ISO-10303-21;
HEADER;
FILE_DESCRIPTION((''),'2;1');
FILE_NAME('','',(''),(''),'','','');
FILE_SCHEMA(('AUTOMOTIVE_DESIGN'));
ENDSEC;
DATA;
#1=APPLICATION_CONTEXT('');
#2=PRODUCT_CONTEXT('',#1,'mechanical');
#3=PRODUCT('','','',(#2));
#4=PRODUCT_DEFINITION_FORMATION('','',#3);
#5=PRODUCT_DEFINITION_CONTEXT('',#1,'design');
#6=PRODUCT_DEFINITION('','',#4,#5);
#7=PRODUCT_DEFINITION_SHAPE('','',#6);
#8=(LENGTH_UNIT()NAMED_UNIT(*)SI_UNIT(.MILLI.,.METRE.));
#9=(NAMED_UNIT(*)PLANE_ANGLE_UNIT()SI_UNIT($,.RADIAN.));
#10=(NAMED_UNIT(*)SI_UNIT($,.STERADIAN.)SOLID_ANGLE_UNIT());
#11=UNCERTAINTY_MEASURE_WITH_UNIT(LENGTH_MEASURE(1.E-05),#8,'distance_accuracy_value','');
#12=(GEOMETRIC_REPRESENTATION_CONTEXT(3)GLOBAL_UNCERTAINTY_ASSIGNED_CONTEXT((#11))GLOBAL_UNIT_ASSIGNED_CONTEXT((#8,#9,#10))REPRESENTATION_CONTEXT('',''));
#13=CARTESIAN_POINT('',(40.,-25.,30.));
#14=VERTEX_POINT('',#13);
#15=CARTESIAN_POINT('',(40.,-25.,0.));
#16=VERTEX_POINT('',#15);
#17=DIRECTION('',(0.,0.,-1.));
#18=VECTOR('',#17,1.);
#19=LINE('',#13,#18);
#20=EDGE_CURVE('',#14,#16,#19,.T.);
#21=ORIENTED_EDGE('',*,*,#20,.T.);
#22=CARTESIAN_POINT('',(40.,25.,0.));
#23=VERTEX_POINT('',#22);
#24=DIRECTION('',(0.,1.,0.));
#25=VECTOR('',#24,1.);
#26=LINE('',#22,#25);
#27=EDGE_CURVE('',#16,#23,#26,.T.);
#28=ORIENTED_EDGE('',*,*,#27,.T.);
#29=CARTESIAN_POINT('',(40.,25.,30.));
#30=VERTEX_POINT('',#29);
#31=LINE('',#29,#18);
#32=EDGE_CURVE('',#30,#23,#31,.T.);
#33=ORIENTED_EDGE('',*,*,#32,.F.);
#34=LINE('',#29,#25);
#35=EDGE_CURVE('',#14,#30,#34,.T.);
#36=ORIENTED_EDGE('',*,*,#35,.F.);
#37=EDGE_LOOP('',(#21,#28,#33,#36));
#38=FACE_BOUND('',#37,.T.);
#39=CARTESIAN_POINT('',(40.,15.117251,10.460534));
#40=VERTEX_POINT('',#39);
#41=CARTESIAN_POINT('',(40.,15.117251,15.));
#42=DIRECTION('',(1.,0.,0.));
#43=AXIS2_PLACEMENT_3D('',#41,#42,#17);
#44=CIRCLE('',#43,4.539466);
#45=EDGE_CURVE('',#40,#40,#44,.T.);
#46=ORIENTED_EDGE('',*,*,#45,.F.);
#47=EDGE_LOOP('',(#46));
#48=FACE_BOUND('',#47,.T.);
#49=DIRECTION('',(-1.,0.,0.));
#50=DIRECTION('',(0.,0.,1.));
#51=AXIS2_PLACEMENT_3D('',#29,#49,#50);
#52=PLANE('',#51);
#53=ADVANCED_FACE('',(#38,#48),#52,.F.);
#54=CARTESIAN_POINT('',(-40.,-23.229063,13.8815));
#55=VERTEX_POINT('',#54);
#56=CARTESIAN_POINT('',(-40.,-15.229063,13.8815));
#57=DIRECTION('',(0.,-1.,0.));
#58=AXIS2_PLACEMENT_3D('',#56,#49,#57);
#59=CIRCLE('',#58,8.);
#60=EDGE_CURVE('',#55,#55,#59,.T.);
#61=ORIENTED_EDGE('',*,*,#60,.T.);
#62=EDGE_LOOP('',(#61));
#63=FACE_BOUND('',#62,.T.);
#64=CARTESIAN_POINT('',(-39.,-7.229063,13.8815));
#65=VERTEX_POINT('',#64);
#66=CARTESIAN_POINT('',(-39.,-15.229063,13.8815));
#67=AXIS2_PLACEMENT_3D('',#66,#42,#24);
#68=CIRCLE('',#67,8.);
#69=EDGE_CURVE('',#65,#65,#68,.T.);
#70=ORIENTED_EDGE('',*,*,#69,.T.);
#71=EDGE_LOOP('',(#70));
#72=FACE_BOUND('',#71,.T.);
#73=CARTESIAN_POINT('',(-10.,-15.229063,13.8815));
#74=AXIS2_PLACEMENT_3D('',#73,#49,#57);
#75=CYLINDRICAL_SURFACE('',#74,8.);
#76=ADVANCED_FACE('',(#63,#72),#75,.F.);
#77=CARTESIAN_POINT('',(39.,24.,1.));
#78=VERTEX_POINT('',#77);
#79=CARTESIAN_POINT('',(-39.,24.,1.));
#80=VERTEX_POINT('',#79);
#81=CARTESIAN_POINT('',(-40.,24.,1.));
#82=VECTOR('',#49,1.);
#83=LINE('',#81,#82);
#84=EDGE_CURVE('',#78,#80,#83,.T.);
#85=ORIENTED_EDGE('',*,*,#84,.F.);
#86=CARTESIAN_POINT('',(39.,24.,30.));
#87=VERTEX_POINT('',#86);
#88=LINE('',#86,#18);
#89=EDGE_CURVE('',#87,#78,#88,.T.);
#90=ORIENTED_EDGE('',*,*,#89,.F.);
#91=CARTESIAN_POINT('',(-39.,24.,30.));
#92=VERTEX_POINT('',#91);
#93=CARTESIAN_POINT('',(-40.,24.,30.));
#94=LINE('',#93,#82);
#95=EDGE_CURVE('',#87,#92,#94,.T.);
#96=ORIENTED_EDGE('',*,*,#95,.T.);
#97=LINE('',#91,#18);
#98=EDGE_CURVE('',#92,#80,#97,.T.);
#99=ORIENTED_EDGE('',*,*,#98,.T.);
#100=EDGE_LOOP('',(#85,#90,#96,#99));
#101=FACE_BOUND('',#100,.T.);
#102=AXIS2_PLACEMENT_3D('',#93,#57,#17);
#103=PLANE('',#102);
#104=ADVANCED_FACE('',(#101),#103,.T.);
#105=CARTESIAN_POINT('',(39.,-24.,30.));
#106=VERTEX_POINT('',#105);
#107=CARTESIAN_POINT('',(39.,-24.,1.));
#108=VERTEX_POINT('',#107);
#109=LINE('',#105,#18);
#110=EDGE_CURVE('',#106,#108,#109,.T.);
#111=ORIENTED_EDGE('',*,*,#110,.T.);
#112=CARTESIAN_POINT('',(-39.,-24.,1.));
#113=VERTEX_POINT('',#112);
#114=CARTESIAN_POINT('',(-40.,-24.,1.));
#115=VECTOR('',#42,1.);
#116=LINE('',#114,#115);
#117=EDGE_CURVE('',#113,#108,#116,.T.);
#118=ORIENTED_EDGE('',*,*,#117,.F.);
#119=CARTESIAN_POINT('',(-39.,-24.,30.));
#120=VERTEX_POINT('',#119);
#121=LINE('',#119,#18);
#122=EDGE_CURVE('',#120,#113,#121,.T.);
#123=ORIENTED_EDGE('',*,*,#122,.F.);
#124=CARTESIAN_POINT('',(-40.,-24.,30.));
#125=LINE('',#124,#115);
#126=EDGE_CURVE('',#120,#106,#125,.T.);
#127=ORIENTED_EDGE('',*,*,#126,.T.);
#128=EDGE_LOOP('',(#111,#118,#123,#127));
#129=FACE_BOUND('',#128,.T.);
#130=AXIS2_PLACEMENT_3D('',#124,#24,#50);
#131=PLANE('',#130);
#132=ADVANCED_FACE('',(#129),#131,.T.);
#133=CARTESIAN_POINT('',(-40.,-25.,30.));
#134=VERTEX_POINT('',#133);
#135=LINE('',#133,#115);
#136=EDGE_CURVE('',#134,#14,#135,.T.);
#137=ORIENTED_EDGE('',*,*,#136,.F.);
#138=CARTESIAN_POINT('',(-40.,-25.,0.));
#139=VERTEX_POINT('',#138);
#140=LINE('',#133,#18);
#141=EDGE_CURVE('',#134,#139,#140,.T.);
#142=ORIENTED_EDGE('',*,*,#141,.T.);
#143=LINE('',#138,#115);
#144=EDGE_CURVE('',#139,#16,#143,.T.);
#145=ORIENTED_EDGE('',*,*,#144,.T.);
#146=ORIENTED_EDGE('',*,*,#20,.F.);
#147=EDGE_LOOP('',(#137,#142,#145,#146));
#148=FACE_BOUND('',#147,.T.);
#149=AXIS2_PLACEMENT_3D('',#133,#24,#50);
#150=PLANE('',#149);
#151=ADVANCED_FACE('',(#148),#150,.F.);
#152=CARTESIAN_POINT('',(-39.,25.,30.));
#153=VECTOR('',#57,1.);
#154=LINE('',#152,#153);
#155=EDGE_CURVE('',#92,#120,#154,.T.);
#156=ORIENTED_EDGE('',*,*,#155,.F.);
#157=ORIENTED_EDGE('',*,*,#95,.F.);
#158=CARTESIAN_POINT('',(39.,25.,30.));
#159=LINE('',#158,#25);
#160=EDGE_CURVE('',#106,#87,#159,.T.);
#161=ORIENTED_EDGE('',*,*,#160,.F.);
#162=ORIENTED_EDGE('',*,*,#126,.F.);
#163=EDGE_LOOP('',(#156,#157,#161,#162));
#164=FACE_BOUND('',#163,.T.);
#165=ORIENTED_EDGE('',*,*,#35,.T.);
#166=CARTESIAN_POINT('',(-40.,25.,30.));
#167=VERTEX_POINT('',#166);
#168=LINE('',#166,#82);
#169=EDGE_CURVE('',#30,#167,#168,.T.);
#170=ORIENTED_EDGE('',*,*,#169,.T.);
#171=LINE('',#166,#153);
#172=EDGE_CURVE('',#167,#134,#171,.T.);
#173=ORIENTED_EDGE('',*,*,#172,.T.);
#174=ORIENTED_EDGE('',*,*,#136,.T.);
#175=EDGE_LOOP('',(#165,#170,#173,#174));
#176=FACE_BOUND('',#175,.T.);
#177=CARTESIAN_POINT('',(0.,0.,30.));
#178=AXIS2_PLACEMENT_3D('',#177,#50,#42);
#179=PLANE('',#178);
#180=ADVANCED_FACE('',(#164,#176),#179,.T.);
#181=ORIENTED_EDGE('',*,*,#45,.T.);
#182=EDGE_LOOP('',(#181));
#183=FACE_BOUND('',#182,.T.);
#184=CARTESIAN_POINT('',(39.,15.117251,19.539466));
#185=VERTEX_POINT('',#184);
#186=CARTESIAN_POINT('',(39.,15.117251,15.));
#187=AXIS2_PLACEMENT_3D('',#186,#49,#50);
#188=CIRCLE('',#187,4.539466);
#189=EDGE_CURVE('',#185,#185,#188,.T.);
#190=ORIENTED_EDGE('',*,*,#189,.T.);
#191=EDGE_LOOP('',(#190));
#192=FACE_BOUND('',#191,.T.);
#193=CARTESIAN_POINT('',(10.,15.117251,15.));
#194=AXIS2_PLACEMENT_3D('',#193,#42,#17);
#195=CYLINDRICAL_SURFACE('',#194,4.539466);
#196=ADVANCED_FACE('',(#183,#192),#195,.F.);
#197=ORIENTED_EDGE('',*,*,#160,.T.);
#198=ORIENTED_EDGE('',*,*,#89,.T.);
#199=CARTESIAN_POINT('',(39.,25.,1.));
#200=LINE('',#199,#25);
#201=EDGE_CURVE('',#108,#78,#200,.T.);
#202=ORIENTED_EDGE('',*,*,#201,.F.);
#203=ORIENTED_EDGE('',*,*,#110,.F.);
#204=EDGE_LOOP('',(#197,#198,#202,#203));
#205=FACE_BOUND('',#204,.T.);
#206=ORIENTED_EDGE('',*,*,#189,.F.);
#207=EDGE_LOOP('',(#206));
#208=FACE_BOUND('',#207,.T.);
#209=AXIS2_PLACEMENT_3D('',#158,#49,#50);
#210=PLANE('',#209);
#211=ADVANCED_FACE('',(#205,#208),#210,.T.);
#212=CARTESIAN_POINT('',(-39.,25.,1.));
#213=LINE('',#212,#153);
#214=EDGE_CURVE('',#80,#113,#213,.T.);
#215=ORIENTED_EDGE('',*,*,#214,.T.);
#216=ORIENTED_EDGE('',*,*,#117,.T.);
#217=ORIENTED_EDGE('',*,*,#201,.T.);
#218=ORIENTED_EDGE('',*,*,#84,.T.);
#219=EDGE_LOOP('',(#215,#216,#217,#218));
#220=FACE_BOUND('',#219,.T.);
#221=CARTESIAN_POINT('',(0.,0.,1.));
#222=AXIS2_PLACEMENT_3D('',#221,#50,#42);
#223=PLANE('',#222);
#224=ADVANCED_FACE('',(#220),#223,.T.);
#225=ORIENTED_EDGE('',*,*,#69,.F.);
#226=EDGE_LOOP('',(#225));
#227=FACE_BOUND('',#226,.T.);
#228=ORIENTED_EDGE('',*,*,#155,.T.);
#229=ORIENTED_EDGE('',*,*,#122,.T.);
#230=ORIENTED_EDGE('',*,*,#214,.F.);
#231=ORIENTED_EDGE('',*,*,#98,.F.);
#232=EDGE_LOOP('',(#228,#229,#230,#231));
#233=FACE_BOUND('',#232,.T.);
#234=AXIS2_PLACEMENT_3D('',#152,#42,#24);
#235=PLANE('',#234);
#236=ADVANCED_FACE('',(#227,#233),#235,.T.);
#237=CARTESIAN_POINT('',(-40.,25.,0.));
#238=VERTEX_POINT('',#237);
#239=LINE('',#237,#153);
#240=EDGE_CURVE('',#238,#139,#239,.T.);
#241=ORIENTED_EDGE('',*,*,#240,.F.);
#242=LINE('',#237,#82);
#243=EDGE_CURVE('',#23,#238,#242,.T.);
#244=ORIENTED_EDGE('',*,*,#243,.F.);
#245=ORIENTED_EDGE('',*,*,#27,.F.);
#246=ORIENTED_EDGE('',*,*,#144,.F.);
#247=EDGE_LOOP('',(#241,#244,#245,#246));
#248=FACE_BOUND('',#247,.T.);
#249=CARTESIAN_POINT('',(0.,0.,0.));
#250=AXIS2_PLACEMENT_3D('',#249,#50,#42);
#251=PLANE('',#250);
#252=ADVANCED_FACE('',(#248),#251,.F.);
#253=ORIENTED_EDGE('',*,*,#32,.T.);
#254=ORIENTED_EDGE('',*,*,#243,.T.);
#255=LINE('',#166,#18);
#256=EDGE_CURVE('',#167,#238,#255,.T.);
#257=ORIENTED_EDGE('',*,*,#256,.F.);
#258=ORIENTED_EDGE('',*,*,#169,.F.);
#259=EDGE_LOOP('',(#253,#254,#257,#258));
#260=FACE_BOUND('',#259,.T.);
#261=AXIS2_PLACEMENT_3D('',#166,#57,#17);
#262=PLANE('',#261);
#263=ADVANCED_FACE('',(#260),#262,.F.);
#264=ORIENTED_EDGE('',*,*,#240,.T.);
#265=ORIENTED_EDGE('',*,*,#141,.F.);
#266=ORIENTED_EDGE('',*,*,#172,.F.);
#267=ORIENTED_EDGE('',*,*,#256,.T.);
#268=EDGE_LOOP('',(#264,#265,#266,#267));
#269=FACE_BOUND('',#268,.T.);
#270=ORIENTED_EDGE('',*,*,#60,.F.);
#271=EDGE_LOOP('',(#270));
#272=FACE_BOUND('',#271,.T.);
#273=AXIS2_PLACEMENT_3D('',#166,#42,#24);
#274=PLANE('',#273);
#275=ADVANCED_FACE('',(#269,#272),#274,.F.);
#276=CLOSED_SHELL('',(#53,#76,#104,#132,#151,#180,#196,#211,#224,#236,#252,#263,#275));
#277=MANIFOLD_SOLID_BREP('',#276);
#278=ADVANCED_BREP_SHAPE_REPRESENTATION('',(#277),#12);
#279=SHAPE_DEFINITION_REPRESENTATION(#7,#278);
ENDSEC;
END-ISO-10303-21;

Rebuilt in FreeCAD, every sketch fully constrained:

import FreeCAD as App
import Part
import Sketcher


def faces_at(feature, points):
    """Names of the faces that lie closest to the given points."""
    faces = feature.Shape.Faces
    near = lambda p: min(range(len(faces)), key=lambda i: faces[i].distToShape(Part.Vertex(*p))[0])
    return sorted({f"Face{near(p) + 1}" for p in points})

doc = App.newDocument("Part")
params = doc.addObject("Spreadsheet::Sheet", "Params")
for row, (alias, value) in enumerate([
    ("sketch1_width", "80 mm"),
    ("sketch1_height", "50 mm"),
    ("pad1_length", "30 mm"),
    ("thickness_wall", "1 mm"),
    ("pocket1_length", "30 mm"),
    ("sketch3_diameter", "16 mm"),
    ("pocket2_length", "30 mm"),
], start=1):
    params.set(f"A{row}", alias)
    params.set(f"B{row}", "=" + value)
    params.setAlias(f"B{row}", alias)

body = doc.addObject("PartDesign::Body", "Body")

# Sketch on XY plane
sketch1 = body.newObject("Sketcher::SketchObject", "Sketch")
sketch1.AttachmentSupport = (doc.getObject("XY_Plane"), [""])
sketch1.MapMode = "FlatFace"
sketch1.addGeometry([
    Part.LineSegment(App.Vector(-40, 25, 0), App.Vector(-40, -25, 0)),
    Part.LineSegment(App.Vector(-40, -25, 0), App.Vector(40, -25, 0)),
    Part.LineSegment(App.Vector(40, -25, 0), App.Vector(40, 25, 0)),
    Part.LineSegment(App.Vector(40, 25, 0), App.Vector(-40, 25, 0)),
], False)
sketch1.addConstraint([
    Sketcher.Constraint("Coincident", 0, 2, 1, 1),
    Sketcher.Constraint("Coincident", 1, 2, 2, 1),
    Sketcher.Constraint("Coincident", 2, 2, 3, 1),
    Sketcher.Constraint("Coincident", 3, 2, 0, 1),
    Sketcher.Constraint("Vertical", 0),
    Sketcher.Constraint("Horizontal", 1),
    Sketcher.Constraint("Vertical", 2),
    Sketcher.Constraint("Horizontal", 3),
    Sketcher.Constraint("Symmetric", 0, 2, 2, 2, -1, 1),
    Sketcher.Constraint("DistanceX", 1, 1, 1, 2, 80.0),
    Sketcher.Constraint("DistanceY", 0, 2, 0, 1, 50.0),
])
sketch1.setExpression("Constraints[9]", "Params.sketch1_width")
sketch1.setExpression("Constraints[10]", "Params.sketch1_height")
pad1 = body.newObject("PartDesign::Pad", "Pad")
pad1.Profile = sketch1
pad1.setExpression("Length", "Params.pad1_length")
doc.recompute()

thickness = body.newObject("PartDesign::Thickness", "Thickness")
thickness.Base = (pad1, faces_at(pad1, [(0, 0, 30)]))
thickness.setExpression("Value", "Params.thickness_wall")
thickness.Reversed = True
thickness.Join = "Intersection"

# Sketch on YZ plane
sketch2 = body.newObject("Sketcher::SketchObject", "Sketch001")
sketch2.AttachmentSupport = (doc.getObject("YZ_Plane"), [""])
sketch2.MapMode = "FlatFace"
sketch2.AttachmentOffset = App.Placement(App.Vector(0, 0, 40), App.Rotation())
sketch2.addGeometry(Part.Circle(App.Vector(15.1, 15, 0), App.Vector(0, 0, 1), 4.5), False)
sketch2.addConstraint([
    Sketcher.Constraint("DistanceY", -1, 1, 0, 3, 15.0),
    Sketcher.Constraint("Diameter", 0, 9.078932),
    Sketcher.Constraint("DistanceX", -1, 1, 0, 3, 15.117251),
])
pocket1 = body.newObject("PartDesign::Pocket", "Pocket")
pocket1.Profile = sketch2
pocket1.setExpression("Length", "Params.pocket1_length")

# Sketch on YZ plane
sketch3 = body.newObject("Sketcher::SketchObject", "Sketch002")
sketch3.AttachmentSupport = (doc.getObject("YZ_Plane"), [""])
sketch3.MapMode = "FlatFace"
sketch3.AttachmentOffset = App.Placement(App.Vector(0, 0, -40), App.Rotation())
sketch3.addGeometry(Part.Circle(App.Vector(-15, 14, 0), App.Vector(0, 0, 1), 8), False)
sketch3.addConstraint([
    Sketcher.Constraint("Diameter", 0, 16.0),
    Sketcher.Constraint("DistanceY", -1, 1, 0, 3, 13.8815),
    Sketcher.Constraint("DistanceX", 0, 3, -1, 1, 15.229063),
])
sketch3.setExpression("Constraints[0]", "Params.sketch3_diameter")
pocket2 = body.newObject("PartDesign::Pocket", "Pocket001")
pocket2.Profile = sketch3
pocket2.setExpression("Length", "Params.pocket2_length")
pocket2.Reversed = True

doc.recompute()
